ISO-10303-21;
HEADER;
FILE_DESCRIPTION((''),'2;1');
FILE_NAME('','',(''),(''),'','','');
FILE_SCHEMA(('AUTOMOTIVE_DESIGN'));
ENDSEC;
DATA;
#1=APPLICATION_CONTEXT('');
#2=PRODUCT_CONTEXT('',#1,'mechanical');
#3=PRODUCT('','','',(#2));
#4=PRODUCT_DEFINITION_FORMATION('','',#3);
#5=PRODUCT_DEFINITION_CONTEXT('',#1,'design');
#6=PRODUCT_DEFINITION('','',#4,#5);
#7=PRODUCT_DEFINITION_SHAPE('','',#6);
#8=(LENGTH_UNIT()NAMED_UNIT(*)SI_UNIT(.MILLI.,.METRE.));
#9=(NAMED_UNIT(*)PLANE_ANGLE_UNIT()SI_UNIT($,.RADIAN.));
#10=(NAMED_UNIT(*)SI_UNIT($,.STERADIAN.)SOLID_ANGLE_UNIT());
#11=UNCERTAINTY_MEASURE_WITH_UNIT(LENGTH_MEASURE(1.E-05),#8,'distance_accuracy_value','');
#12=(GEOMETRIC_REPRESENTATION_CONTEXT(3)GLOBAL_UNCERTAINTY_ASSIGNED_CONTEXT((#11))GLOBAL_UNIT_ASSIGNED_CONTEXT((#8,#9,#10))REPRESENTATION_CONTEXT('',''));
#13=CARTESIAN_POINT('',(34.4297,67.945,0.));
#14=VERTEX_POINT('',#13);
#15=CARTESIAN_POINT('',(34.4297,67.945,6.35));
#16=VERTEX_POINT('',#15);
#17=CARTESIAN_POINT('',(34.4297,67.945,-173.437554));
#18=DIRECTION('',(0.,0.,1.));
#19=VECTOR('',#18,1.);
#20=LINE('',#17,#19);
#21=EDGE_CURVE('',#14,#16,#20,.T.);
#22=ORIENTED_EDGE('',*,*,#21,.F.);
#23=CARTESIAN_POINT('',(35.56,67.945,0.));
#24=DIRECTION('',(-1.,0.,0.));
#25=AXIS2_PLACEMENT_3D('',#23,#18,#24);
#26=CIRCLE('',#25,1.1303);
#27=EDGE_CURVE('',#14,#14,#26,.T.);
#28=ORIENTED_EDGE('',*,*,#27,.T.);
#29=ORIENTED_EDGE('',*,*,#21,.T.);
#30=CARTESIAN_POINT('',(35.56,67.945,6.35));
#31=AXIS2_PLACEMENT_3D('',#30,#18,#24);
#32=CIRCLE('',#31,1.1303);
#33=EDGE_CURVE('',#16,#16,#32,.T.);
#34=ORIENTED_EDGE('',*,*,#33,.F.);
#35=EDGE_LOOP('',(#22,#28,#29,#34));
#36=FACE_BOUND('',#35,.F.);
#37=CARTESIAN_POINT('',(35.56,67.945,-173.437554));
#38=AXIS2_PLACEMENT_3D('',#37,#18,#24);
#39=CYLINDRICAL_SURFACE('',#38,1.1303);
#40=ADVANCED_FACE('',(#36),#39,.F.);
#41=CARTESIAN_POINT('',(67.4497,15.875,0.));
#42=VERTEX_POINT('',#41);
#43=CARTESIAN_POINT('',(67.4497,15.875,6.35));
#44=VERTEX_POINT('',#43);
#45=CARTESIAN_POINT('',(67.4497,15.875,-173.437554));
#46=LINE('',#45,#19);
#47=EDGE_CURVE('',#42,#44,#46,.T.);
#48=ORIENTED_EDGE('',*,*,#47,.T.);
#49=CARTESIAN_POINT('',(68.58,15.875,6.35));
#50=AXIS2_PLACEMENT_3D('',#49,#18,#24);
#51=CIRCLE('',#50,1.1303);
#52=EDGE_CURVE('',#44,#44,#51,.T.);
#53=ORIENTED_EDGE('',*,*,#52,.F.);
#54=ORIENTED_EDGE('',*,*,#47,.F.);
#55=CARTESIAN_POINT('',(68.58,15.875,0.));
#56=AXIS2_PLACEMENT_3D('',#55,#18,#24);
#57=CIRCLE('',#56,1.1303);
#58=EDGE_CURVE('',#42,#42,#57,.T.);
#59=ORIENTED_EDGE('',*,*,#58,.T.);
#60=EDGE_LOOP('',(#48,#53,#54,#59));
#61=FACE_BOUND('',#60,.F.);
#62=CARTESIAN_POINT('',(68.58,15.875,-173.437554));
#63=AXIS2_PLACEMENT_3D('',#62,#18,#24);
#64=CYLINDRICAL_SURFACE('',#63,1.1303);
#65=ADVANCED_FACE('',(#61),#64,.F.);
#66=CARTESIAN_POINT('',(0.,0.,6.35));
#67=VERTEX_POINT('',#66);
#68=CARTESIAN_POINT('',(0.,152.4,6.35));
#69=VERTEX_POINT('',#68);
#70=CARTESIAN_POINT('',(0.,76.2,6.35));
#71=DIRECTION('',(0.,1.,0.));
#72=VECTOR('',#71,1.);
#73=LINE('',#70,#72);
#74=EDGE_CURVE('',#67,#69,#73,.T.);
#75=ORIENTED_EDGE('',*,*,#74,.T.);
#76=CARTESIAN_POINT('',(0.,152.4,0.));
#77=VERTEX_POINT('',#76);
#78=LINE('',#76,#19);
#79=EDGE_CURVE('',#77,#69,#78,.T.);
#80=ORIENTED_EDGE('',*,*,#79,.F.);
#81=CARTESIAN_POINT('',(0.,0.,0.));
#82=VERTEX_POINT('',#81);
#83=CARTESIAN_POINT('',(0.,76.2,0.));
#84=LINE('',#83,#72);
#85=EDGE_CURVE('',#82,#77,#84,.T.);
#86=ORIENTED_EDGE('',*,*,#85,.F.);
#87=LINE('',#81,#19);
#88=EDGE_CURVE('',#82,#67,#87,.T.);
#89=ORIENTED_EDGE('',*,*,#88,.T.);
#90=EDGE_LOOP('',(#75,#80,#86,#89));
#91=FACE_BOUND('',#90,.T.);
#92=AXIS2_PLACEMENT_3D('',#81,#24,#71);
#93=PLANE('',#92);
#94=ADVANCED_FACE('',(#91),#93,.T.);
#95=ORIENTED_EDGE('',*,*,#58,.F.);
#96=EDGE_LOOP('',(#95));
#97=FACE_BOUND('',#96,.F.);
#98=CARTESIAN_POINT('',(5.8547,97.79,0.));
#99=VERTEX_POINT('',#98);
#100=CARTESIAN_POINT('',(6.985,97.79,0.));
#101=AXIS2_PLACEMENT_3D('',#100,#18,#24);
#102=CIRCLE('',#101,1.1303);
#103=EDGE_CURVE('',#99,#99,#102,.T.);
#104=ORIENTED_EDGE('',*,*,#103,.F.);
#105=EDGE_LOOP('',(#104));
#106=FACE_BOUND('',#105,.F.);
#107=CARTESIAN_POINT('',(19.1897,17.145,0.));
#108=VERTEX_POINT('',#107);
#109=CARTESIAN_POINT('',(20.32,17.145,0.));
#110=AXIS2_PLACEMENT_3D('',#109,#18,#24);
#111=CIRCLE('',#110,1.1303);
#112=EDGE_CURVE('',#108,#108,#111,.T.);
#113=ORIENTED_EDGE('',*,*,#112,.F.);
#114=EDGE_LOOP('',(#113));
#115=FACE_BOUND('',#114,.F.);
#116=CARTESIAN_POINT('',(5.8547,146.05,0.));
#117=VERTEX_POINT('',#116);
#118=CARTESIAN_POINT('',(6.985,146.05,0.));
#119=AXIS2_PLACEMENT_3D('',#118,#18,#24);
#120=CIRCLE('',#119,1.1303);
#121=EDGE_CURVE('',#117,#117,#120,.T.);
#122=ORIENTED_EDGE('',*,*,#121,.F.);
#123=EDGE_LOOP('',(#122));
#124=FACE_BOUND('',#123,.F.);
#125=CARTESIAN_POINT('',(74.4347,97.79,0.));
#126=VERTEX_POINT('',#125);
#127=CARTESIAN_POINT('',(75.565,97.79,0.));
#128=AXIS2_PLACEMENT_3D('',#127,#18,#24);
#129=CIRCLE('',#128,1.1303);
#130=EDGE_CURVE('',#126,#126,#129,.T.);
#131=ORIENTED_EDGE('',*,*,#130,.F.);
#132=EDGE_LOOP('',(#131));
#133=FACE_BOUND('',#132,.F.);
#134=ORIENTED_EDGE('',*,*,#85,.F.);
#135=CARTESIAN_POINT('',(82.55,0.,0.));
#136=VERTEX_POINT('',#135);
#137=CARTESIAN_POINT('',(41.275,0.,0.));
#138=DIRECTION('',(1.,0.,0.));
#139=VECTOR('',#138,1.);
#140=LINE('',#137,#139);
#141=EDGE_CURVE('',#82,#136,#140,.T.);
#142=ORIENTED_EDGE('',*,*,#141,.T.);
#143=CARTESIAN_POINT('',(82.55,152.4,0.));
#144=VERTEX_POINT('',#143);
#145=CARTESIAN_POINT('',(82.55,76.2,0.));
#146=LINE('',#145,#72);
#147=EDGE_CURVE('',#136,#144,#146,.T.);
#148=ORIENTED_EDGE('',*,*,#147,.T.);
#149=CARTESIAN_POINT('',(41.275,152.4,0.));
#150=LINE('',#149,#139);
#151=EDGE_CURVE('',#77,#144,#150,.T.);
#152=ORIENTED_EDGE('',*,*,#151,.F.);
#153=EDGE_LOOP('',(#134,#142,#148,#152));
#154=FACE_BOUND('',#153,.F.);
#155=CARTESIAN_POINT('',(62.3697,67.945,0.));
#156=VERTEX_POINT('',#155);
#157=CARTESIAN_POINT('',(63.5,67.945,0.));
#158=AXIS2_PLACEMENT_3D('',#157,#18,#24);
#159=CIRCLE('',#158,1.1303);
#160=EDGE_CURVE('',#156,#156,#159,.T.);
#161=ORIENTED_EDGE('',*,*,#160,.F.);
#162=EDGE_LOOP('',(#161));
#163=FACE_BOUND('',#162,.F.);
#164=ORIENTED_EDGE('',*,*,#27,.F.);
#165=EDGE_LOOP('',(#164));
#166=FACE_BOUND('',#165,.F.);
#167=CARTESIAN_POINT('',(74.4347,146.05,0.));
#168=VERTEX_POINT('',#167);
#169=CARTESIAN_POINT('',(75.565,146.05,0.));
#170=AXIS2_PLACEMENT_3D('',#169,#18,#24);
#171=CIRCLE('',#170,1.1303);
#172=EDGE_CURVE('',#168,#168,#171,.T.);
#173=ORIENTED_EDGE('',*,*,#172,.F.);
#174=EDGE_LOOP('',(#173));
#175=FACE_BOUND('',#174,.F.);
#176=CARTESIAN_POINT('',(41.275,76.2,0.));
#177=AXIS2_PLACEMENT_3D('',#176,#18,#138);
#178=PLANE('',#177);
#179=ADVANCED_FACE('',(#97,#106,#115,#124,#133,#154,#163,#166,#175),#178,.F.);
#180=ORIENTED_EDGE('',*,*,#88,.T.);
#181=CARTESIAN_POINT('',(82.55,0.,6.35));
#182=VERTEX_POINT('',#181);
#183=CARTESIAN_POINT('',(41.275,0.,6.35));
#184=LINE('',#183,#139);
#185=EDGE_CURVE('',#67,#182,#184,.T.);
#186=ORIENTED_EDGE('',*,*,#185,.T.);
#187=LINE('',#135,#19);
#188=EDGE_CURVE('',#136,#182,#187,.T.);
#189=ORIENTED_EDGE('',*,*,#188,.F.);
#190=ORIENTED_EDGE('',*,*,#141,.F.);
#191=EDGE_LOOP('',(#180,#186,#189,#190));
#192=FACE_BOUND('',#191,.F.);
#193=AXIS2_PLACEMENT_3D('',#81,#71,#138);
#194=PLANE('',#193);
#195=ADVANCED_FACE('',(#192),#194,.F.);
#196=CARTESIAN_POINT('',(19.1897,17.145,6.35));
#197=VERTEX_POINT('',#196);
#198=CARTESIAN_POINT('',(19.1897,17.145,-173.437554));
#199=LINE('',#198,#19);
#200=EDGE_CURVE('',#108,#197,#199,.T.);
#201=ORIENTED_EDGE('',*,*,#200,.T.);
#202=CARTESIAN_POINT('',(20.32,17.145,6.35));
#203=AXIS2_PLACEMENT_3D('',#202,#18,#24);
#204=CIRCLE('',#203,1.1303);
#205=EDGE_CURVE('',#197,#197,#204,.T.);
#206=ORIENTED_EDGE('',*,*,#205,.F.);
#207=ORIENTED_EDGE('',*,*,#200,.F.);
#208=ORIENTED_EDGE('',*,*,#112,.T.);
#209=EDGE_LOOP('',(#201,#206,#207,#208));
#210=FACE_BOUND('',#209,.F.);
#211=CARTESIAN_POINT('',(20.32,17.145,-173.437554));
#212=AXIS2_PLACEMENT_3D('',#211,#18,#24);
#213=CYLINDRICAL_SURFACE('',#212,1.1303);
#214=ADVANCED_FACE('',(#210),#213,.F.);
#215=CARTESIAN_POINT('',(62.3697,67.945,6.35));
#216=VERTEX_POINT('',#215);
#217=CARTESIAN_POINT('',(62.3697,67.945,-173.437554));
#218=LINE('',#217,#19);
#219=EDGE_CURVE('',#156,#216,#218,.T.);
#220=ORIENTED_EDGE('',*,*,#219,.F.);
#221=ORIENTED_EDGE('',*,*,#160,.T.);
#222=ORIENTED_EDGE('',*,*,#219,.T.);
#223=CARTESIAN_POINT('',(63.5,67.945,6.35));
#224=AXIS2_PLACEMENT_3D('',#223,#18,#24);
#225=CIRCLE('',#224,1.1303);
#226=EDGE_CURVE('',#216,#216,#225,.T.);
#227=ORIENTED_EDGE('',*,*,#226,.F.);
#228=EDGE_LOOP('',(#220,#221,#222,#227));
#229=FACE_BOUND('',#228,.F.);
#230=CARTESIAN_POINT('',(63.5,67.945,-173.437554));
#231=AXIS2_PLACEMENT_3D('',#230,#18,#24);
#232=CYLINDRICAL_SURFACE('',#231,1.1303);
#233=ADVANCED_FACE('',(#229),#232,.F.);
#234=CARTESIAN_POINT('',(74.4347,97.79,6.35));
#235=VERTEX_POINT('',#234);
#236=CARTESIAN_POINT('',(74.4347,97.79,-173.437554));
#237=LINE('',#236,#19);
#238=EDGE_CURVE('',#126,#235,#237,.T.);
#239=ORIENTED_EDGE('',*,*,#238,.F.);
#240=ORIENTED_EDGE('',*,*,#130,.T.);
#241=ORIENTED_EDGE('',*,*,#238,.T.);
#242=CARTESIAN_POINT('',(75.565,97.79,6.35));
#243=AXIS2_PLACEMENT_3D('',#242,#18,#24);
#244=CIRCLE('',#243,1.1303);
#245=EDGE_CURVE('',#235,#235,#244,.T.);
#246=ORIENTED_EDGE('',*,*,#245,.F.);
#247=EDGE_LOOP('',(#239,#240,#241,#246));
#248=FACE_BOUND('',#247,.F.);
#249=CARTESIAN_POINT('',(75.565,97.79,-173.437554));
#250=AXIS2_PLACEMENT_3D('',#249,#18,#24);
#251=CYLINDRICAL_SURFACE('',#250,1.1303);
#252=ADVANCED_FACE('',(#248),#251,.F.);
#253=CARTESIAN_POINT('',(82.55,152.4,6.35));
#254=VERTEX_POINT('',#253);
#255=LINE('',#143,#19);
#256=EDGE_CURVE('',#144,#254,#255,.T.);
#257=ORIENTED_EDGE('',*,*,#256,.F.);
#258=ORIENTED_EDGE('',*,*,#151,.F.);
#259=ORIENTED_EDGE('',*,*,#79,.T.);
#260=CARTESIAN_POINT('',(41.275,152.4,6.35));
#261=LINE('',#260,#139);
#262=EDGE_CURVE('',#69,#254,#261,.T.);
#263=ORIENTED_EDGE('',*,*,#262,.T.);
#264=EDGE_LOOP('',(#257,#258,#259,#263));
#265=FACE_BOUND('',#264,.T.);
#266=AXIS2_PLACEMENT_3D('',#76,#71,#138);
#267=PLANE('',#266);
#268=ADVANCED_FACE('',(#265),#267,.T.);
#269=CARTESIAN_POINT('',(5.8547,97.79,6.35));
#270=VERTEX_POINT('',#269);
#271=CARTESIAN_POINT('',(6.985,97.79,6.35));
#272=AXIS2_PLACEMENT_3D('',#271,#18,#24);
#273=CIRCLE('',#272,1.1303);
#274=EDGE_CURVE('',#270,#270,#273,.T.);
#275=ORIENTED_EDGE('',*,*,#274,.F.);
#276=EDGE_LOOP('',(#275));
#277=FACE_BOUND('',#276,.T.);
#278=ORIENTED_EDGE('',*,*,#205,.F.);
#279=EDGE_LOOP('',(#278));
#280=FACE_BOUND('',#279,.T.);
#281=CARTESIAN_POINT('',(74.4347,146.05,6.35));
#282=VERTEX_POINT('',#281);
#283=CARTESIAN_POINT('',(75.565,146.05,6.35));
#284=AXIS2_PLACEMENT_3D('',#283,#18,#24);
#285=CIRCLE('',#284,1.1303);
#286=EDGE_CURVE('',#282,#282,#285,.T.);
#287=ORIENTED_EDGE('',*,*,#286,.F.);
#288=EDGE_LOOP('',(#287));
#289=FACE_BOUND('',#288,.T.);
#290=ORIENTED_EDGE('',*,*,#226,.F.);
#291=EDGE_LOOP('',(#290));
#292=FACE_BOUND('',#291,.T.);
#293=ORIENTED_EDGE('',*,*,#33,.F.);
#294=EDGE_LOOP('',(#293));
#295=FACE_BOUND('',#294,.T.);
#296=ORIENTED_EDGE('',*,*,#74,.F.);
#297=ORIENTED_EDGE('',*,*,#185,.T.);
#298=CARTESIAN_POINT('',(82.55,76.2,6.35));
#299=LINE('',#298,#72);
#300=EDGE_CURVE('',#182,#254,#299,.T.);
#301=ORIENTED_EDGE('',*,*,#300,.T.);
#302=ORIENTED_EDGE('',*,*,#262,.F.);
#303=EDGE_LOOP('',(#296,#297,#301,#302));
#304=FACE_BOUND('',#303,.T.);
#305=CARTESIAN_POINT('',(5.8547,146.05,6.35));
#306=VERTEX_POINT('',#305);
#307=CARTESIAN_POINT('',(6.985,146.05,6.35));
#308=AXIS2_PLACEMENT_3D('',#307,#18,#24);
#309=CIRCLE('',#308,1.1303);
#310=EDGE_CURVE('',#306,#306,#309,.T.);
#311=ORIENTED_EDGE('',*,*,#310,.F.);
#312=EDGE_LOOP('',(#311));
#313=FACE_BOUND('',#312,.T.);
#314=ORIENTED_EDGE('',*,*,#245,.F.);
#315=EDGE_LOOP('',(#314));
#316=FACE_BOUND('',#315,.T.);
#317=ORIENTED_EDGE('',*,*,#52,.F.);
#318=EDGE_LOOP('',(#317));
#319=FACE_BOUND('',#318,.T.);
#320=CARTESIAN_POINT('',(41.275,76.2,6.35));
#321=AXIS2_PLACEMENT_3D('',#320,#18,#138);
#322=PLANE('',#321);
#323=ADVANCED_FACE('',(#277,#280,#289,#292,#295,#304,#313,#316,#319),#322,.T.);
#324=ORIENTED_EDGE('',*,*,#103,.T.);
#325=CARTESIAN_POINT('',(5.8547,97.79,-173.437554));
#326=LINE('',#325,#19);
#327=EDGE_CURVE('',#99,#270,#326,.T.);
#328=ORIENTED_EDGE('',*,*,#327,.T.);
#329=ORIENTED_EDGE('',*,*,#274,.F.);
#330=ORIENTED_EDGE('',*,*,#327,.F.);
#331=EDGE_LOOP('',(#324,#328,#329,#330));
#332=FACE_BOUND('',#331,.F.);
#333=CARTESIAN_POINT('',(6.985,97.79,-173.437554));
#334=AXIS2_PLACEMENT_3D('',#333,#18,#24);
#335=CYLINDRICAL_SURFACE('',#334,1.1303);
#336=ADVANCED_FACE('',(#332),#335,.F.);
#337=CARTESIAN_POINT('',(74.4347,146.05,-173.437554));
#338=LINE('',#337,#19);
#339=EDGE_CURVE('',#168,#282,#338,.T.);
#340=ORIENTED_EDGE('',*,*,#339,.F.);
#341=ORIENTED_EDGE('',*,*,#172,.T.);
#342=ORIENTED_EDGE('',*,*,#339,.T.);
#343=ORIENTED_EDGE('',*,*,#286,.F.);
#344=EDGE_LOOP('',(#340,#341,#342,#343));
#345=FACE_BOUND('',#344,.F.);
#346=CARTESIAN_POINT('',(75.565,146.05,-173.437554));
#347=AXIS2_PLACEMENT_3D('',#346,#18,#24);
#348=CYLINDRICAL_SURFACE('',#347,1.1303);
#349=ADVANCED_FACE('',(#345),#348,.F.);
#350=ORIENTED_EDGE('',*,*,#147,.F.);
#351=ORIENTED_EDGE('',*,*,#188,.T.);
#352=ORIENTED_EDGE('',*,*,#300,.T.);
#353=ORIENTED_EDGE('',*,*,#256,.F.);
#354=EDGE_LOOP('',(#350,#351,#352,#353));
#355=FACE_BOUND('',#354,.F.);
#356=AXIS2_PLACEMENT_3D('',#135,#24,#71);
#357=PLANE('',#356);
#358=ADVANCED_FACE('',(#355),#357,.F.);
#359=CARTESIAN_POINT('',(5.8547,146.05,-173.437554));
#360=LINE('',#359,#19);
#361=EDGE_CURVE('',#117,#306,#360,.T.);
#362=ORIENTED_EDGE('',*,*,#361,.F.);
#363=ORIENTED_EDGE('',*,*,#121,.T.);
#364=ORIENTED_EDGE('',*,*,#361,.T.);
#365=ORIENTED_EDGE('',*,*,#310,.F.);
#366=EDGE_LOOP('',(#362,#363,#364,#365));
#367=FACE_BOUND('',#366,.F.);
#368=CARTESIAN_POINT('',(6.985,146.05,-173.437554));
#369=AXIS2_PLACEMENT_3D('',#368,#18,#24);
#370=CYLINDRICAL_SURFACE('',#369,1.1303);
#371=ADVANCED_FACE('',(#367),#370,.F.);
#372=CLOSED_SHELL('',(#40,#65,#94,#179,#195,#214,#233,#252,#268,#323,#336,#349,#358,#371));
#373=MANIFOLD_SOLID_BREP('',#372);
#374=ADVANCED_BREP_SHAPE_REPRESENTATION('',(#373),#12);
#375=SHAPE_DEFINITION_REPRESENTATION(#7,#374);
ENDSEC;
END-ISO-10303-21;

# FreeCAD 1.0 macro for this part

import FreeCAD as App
import Part
import Sketcher
from FreeCAD import Vector
Q = App.Units.Quantity


def add_polygon(sketch, points):
    """Adds a closed chain of lines whose ends are joined by coincident constraints."""
    first, n = sketch.GeometryCount, len(points)
    for a, b in zip(points, points[1:] + points[:1]):
        sketch.addGeometry(Part.LineSegment(App.Vector(*a, 0), App.Vector(*b, 0)), False)
    for i in range(n):
        sketch.addConstraint(Sketcher.Constraint("Coincident", first + i, 2, first + (i + 1) % n, 1))

doc = App.newDocument("Part")
params = doc.addObject("Spreadsheet::Sheet", "Params")
for row, (alias, value) in enumerate([
    ("sketch1_height", "6 in"),
    ("sketch1_width", "3.25 in"),
    ("pad1_length", "0.25 in"),
    ("sketch2_diameter", "0.089 in"),
    ("hole_diameter", "0.089 in"),
], start=1):
    params.set(f"A{row}", alias)
    params.set(f"B{row}", "=" + value)
    params.setAlias(f"B{row}", alias)

body = doc.addObject("PartDesign::Body", "Body")

# Sketch on XY plane
sketch1 = body.newObject("Sketcher::SketchObject", "Sketch")
sketch1.AttachmentSupport = (doc.getObject("XY_Plane"), [""])
sketch1.MapMode = "FlatFace"
add_polygon(sketch1, [(0, 152.4), (0, 0), (82.55, 0), (82.55, 152.4)])  # lines 0-3
sketch1.addConstraint([
    Sketcher.Constraint("Vertical", 0),
    Sketcher.Constraint("Horizontal", 1),
    Sketcher.Constraint("Vertical", 2),
    Sketcher.Constraint("Horizontal", 3),
    Sketcher.Constraint("Coincident", 0, 2, -1, 1),
    Sketcher.Constraint("DistanceY", 0, 2, 0, 1, Q("6 in")),
    Sketcher.Constraint("DistanceX", 1, 1, 1, 2, Q("3.25 in")),
])
sketch1.setExpression("Constraints[9]", "Params.sketch1_height")
sketch1.setExpression("Constraints[10]", "Params.sketch1_width")
pad1 = body.newObject("PartDesign::Pad", "Pad")
pad1.Profile = sketch1
pad1.setExpression("Length", "Params.pad1_length")

# Sketch on XY plane
sketch2 = body.newObject("Sketcher::SketchObject", "Sketch001")
sketch2.AttachmentSupport = (doc.getObject("XY_Plane"), [""])
sketch2.MapMode = "FlatFace"
sketch2.addGeometry([
    Part.Circle(Vector(6.985, 97.79, 0), Vector(0, 0, 1), 1.1303),  # 0
    Part.Circle(Vector(6.985, 146.05, 0), Vector(0, 0, 1), 1.1303),  # 1
    Part.Circle(Vector(75.565, 146.05, 0), Vector(0, 0, 1), 1.1303),  # 2
    Part.Circle(Vector(75.565, 97.79, 0), Vector(0, 0, 1), 1.1303),  # 3
    Part.Circle(Vector(35.56, 67.945, 0), Vector(0, 0, 1), 1.1303),  # 4
    Part.Circle(Vector(63.5, 67.945, 0), Vector(0, 0, 1), 1.1303),  # 5
    Part.Circle(Vector(20.32, 17.145, 0), Vector(0, 0, 1), 1.1303),  # 6
    Part.Circle(Vector(68.58, 15.875, 0), Vector(0, 0, 1), 1.1303),  # 7
], False)
sketch2.addConstraint([
    Sketcher.Constraint("Equal", 0, 1),
    Sketcher.Constraint("Equal", 1, 2),
    Sketcher.Constraint("Equal", 2, 3),
    Sketcher.Constraint("Equal", 3, 4),
    Sketcher.Constraint("Equal", 4, 5),
    Sketcher.Constraint("Equal", 5, 6),
    Sketcher.Constraint("Equal", 6, 7),
    Sketcher.Constraint("Horizontal", 1, 3, 2, 3),
    Sketcher.Constraint("Horizontal", 0, 3, 3, 3),
    Sketcher.Constraint("Horizontal", 4, 3, 5, 3),
    Sketcher.Constraint("Vertical", 0, 3, 1, 3),
    Sketcher.Constraint("Vertical", 2, 3, 3, 3),
    Sketcher.Constraint("Diameter", 0, Q("0.089 in")),
    Sketcher.Constraint("DistanceY", 6, 3, 4, 3, Q("2 in")),
    Sketcher.Constraint("DistanceX", -1, 1, 4, 3, Q("1.4 in")),
    Sketcher.Constraint("DistanceX", -1, 1, 5, 3, Q("2.5 in")),
    Sketcher.Constraint("DistanceX", -1, 1, 6, 3, Q("0.8 in")),
    Sketcher.Constraint("DistanceX", -1, 1, 7, 3, Q("2.7 in")),
    Sketcher.Constraint("DistanceY", 0, 3, 1, 3, Q("1.9 in")),
    Sketcher.Constraint("DistanceX", 1, 3, 2, 3, Q("2.7 in")),
    Sketcher.Constraint("DistanceY", -1, 1, 0, 3, Q("3.85 in")),
    Sketcher.Constraint("DistanceY", 7, 3, 6, 3, Q("0.05 in")),
    Sketcher.Constraint("DistanceX", -1, 1, 0, 3, Q("0.275 in")),
    Sketcher.Constraint("DistanceY", -1, 1, 4, 3, Q("2.675 in")),
])
sketch2.setExpression("Constraints[12]", "Params.sketch2_diameter")
doc.recompute()
hole = body.newObject("PartDesign::Hole", "Hole")
hole.Profile = sketch2
hole.ThreadType = "None"
hole.setExpression("Diameter", "Params.hole_diameter")
hole.DepthType = "ThroughAll"
hole.Reversed = True

doc.recompute()
